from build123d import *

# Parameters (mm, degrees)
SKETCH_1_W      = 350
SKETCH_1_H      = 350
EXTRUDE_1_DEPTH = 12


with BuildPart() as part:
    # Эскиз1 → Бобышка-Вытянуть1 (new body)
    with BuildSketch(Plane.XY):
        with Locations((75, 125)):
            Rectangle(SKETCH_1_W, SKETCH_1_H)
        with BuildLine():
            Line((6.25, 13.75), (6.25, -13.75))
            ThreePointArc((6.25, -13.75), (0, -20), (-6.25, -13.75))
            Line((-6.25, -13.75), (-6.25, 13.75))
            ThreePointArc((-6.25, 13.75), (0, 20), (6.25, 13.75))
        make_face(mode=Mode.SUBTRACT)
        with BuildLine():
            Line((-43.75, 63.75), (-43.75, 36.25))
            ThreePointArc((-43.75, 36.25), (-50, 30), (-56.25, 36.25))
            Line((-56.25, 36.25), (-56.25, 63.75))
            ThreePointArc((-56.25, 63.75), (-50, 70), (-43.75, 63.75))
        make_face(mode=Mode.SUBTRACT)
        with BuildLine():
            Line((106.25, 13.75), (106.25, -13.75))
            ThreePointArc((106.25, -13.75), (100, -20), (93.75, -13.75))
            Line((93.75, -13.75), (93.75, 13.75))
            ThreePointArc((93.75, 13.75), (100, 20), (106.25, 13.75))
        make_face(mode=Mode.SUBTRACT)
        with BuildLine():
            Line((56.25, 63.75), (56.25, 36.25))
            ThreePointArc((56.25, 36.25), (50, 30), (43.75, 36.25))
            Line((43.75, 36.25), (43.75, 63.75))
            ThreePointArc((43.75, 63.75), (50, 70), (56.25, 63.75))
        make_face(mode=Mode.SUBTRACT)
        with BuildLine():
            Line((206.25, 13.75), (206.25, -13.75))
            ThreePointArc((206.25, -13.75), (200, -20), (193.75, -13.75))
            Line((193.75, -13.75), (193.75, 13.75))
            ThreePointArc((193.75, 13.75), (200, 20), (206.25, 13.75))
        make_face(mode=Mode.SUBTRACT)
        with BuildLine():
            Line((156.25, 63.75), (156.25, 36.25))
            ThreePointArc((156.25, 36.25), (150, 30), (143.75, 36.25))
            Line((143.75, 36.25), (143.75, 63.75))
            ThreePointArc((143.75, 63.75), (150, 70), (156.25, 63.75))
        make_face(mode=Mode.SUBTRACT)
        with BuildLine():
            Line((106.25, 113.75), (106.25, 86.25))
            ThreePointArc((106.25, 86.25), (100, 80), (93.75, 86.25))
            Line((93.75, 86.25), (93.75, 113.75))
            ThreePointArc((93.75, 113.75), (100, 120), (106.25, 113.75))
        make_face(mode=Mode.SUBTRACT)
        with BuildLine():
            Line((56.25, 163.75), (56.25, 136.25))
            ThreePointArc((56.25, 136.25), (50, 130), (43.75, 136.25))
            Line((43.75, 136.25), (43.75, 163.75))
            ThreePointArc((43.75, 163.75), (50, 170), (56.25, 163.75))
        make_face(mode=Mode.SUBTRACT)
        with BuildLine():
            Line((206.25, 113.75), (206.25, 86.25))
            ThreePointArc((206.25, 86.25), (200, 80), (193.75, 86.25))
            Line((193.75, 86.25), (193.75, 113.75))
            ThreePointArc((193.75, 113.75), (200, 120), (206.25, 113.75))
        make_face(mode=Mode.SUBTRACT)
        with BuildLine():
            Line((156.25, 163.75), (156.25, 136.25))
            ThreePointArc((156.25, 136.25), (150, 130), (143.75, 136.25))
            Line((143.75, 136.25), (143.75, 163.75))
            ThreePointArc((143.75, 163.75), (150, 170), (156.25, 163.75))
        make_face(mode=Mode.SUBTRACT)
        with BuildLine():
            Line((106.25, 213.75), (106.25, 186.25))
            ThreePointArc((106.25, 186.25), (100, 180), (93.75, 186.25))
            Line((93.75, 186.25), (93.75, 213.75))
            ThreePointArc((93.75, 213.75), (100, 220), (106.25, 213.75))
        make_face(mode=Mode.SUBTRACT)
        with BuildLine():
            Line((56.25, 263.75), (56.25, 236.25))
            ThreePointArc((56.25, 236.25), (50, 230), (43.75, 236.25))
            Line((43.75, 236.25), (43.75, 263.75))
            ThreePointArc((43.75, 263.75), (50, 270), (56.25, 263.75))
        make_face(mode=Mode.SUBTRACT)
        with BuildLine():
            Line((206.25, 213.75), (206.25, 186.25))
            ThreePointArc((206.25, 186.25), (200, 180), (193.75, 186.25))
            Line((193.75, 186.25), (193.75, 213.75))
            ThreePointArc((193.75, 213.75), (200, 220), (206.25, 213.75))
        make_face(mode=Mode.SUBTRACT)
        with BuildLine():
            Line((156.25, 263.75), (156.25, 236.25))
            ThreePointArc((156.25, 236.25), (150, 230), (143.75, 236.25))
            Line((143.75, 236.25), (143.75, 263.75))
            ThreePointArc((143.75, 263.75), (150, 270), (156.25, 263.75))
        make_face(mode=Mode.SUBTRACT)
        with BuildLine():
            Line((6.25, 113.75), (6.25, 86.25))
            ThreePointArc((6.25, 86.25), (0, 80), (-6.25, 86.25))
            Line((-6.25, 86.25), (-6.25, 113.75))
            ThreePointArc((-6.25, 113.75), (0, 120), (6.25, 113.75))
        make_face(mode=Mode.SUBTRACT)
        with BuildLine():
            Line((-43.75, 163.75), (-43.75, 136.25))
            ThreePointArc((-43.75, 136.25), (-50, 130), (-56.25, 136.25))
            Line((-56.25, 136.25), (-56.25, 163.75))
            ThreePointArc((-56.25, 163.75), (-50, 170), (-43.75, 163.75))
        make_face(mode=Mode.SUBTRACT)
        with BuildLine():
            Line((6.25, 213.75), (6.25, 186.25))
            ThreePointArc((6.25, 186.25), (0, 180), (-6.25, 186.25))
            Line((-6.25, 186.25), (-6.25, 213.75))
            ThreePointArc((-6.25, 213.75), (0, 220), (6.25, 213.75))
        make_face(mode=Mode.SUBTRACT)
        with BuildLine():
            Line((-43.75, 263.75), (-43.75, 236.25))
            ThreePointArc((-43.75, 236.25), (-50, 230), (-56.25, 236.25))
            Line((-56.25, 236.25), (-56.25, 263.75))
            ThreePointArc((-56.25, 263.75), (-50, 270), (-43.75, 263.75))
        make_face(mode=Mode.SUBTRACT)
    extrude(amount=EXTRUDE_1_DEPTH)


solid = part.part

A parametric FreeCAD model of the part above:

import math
import FreeCAD as App
import Part
import Sketcher
Q = App.Units.Quantity

doc = App.newDocument("Part")
body = doc.addObject("PartDesign::Body", "Body")

# Sketch on XY plane
sketch1 = body.newObject("Sketcher::SketchObject", "Sketch")
sketch1.AttachmentSupport = (doc.getObject("XY_Plane"), [""])
sketch1.MapMode = "FlatFace"
sketch1.addGeometry([
    Part.LineSegment(App.Vector(-100, 300, 0), App.Vector(-100, -50, 0)),  # 0
    Part.LineSegment(App.Vector(-100, -50, 0), App.Vector(250, -50, 0)),  # 1
    Part.LineSegment(App.Vector(250, -50, 0), App.Vector(250, 300, 0)),  # 2
    Part.LineSegment(App.Vector(250, 300, 0), App.Vector(-100, 300, 0)),  # 3
    Part.ArcOfCircle(Part.Circle(App.Vector(0, 13.75, 0), App.Vector(0, 0, 1), 6.25), math.radians(0), math.radians(180)),  # 4
    Part.LineSegment(App.Vector(6.25, 13.75, 0), App.Vector(6.25, -13.75, 0)),  # 5
    Part.ArcOfCircle(Part.Circle(App.Vector(0, -13.75, 0), App.Vector(0, 0, 1), 6.25), math.radians(180), math.radians(360)),  # 6
    Part.LineSegment(App.Vector(-6.25, -13.75, 0), App.Vector(-6.25, 13.75, 0)),  # 7
    Part.ArcOfCircle(Part.Circle(App.Vector(-50, 63.75, 0), App.Vector(0, 0, 1), 6.25), math.radians(0), math.radians(180)),  # 8
    Part.LineSegment(App.Vector(-43.75, 63.75, 0), App.Vector(-43.75, 36.25, 0)),  # 9
    Part.ArcOfCircle(Part.Circle(App.Vector(-50, 36.25, 0), App.Vector(0, 0, 1), 6.25), math.radians(180), math.radians(360)),  # 10
    Part.LineSegment(App.Vector(-56.25, 36.25, 0), App.Vector(-56.25, 63.75, 0)),  # 11
    Part.ArcOfCircle(Part.Circle(App.Vector(50, 63.75, 0), App.Vector(0, 0, 1), 6.25), math.radians(0), math.radians(180)),  # 12
    Part.LineSegment(App.Vector(56.25, 63.75, 0), App.Vector(56.25, 36.25, 0)),  # 13
    Part.ArcOfCircle(Part.Circle(App.Vector(50, 36.25, 0), App.Vector(0, 0, 1), 6.25), math.radians(180), math.radians(360)),  # 14
    Part.LineSegment(App.Vector(43.75, 36.25, 0), App.Vector(43.75, 63.75, 0)),  # 15
    Part.ArcOfCircle(Part.Circle(App.Vector(0, 113.75, 0), App.Vector(0, 0, 1), 6.25), math.radians(0), math.radians(180)),  # 16
    Part.LineSegment(App.Vector(6.25, 113.75, 0), App.Vector(6.25, 86.25, 0)),  # 17
    Part.ArcOfCircle(Part.Circle(App.Vector(0, 86.25, 0), App.Vector(0, 0, 1), 6.25), math.radians(180), math.radians(360)),  # 18
    Part.LineSegment(App.Vector(-6.25, 86.25, 0), App.Vector(-6.25, 113.75, 0)),  # 19
    Part.ArcOfCircle(Part.Circle(App.Vector(100, 13.75, 0), App.Vector(0, 0, 1), 6.25), math.radians(0), math.radians(180)),  # 20
    Part.LineSegment(App.Vector(106.25, 13.75, 0), App.Vector(106.25, -13.75, 0)),  # 21
    Part.ArcOfCircle(Part.Circle(App.Vector(100, -13.75, 0), App.Vector(0, 0, 1), 6.25), math.radians(180), math.radians(360)),  # 22
    Part.LineSegment(App.Vector(93.75, -13.75, 0), App.Vector(93.75, 13.75, 0)),  # 23
    Part.ArcOfCircle(Part.Circle(App.Vector(200, 13.75, 0), App.Vector(0, 0, 1), 6.25), math.radians(0), math.radians(180)),  # 24
    Part.LineSegment(App.Vector(206.25, 13.75, 0), App.Vector(206.25, -13.75, 0)),  # 25
    Part.ArcOfCircle(Part.Circle(App.Vector(200, -13.75, 0), App.Vector(0, 0, 1), 6.25), math.radians(180), math.radians(360)),  # 26
    Part.LineSegment(App.Vector(193.75, -13.75, 0), App.Vector(193.75, 13.75, 0)),  # 27
    Part.ArcOfCircle(Part.Circle(App.Vector(150, 63.75, 0), App.Vector(0, 0, 1), 6.25), math.radians(0), math.radians(180)),  # 28
    Part.LineSegment(App.Vector(156.25, 63.75, 0), App.Vector(156.25, 36.25, 0)),  # 29
    Part.ArcOfCircle(Part.Circle(App.Vector(150, 36.25, 0), App.Vector(0, 0, 1), 6.25), math.radians(180), math.radians(360)),  # 30
    Part.LineSegment(App.Vector(143.75, 36.25, 0), App.Vector(143.75, 63.75, 0)),  # 31
    Part.ArcOfCircle(Part.Circle(App.Vector(100, 113.75, 0), App.Vector(0, 0, 1), 6.25), math.radians(0), math.radians(180)),  # 32
    Part.LineSegment(App.Vector(106.25, 113.75, 0), App.Vector(106.25, 86.25, 0)),  # 33
    Part.ArcOfCircle(Part.Circle(App.Vector(100, 86.25, 0), App.Vector(0, 0, 1), 6.25), math.radians(180), math.radians(360)),  # 34
    Part.LineSegment(App.Vector(93.75, 86.25, 0), App.Vector(93.75, 113.75, 0)),  # 35
    Part.ArcOfCircle(Part.Circle(App.Vector(200, 113.75, 0), App.Vector(0, 0, 1), 6.25), math.radians(0), math.radians(180)),  # 36
    Part.LineSegment(App.Vector(206.25, 113.75, 0), App.Vector(206.25, 86.25, 0)),  # 37
    Part.ArcOfCircle(Part.Circle(App.Vector(200, 86.25, 0), App.Vector(0, 0, 1), 6.25), math.radians(180), math.radians(360)),  # 38
    Part.LineSegment(App.Vector(193.75, 86.25, 0), App.Vector(193.75, 113.75, 0)),  # 39
    Part.ArcOfCircle(Part.Circle(App.Vector(-50, 163.75, 0), App.Vector(0, 0, 1), 6.25), math.radians(0), math.radians(180)),  # 40
    Part.LineSegment(App.Vector(-43.75, 163.75, 0), App.Vector(-43.75, 136.25, 0)),  # 41
    Part.ArcOfCircle(Part.Circle(App.Vector(-50, 136.25, 0), App.Vector(0, 0, 1), 6.25), math.radians(180), math.radians(360)),  # 42
    Part.LineSegment(App.Vector(-56.25, 136.25, 0), App.Vector(-56.25, 163.75, 0)),  # 43
    Part.ArcOfCircle(Part.Circle(App.Vector(50, 163.75, 0), App.Vector(0, 0, 1), 6.25), math.radians(0), math.radians(180)),  # 44
    Part.LineSegment(App.Vector(56.25, 163.75, 0), App.Vector(56.25, 136.25, 0)),  # 45
    Part.ArcOfCircle(Part.Circle(App.Vector(50, 136.25, 0), App.Vector(0, 0, 1), 6.25), math.radians(180), math.radians(360)),  # 46
    Part.LineSegment(App.Vector(43.75, 136.25, 0), App.Vector(43.75, 163.75, 0)),  # 47
    Part.ArcOfCircle(Part.Circle(App.Vector(0, 213.75, 0), App.Vector(0, 0, 1), 6.25), math.radians(0), math.radians(180)),  # 48
    Part.LineSegment(App.Vector(6.25, 213.75, 0), App.Vector(6.25, 186.25, 0)),  # 49
    Part.ArcOfCircle(Part.Circle(App.Vector(0, 186.25, 0), App.Vector(0, 0, 1), 6.25), math.radians(180), math.radians(360)),  # 50
    Part.LineSegment(App.Vector(-6.25, 186.25, 0), App.Vector(-6.25, 213.75, 0)),  # 51
    Part.ArcOfCircle(Part.Circle(App.Vector(-50, 263.75, 0), App.Vector(0, 0, 1), 6.25), math.radians(0), math.radians(180)),  # 52
    Part.LineSegment(App.Vector(-43.75, 263.75, 0), App.Vector(-43.75, 236.25, 0)),  # 53
    Part.ArcOfCircle(Part.Circle(App.Vector(-50, 236.25, 0), App.Vector(0, 0, 1), 6.25), math.radians(180), math.radians(360)),  # 54
    Part.LineSegment(App.Vector(-56.25, 236.25, 0), App.Vector(-56.25, 263.75, 0)),  # 55
    Part.ArcOfCircle(Part.Circle(App.Vector(50, 263.75, 0), App.Vector(0, 0, 1), 6.25), math.radians(0), math.radians(180)),  # 56
    Part.LineSegment(App.Vector(56.25, 263.75, 0), App.Vector(56.25, 236.25, 0)),  # 57
    Part.ArcOfCircle(Part.Circle(App.Vector(50, 236.25, 0), App.Vector(0, 0, 1), 6.25), math.radians(180), math.radians(360)),  # 58
    Part.LineSegment(App.Vector(43.75, 236.25, 0), App.Vector(43.75, 263.75, 0)),  # 59
    Part.ArcOfCircle(Part.Circle(App.Vector(150, 163.75, 0), App.Vector(0, 0, 1), 6.25), math.radians(0), math.radians(180)),  # 60
    Part.LineSegment(App.Vector(156.25, 163.75, 0), App.Vector(156.25, 136.25, 0)),  # 61
    Part.ArcOfCircle(Part.Circle(App.Vector(150, 136.25, 0), App.Vector(0, 0, 1), 6.25), math.radians(180), math.radians(360)),  # 62
    Part.LineSegment(App.Vector(143.75, 136.25, 0), App.Vector(143.75, 163.75, 0)),  # 63
    Part.ArcOfCircle(Part.Circle(App.Vector(100, 213.75, 0), App.Vector(0, 0, 1), 6.25), math.radians(0), math.radians(180)),  # 64
    Part.LineSegment(App.Vector(106.25, 213.75, 0), App.Vector(106.25, 186.25, 0)),  # 65
    Part.ArcOfCircle(Part.Circle(App.Vector(100, 186.25, 0), App.Vector(0, 0, 1), 6.25), math.radians(180), math.radians(360)),  # 66
    Part.LineSegment(App.Vector(93.75, 186.25, 0), App.Vector(93.75, 213.75, 0)),  # 67
    Part.ArcOfCircle(Part.Circle(App.Vector(200, 213.75, 0), App.Vector(0, 0, 1), 6.25), math.radians(0), math.radians(180)),  # 68
    Part.LineSegment(App.Vector(206.25, 213.75, 0), App.Vector(206.25, 186.25, 0)),  # 69
    Part.ArcOfCircle(Part.Circle(App.Vector(200, 186.25, 0), App.Vector(0, 0, 1), 6.25), math.radians(180), math.radians(360)),  # 70
    Part.LineSegment(App.Vector(193.75, 186.25, 0), App.Vector(193.75, 213.75, 0)),  # 71
    Part.ArcOfCircle(Part.Circle(App.Vector(150, 263.75, 0), App.Vector(0, 0, 1), 6.25), math.radians(0), math.radians(180)),  # 72
    Part.LineSegment(App.Vector(156.25, 263.75, 0), App.Vector(156.25, 236.25, 0)),  # 73
    Part.ArcOfCircle(Part.Circle(App.Vector(150, 236.25, 0), App.Vector(0, 0, 1), 6.25), math.radians(180), math.radians(360)),  # 74
    Part.LineSegment(App.Vector(143.75, 236.25, 0), App.Vector(143.75, 263.75, 0)),  # 75
], False)
sketch1.addConstraint([
    Sketcher.Constraint("Coincident", 0, 2, 1, 1),
    Sketcher.Constraint("Coincident", 1, 2, 2, 1),
    Sketcher.Constraint("Coincident", 2, 2, 3, 1),
    Sketcher.Constraint("Coincident", 3, 2, 0, 1),
    Sketcher.Constraint("Tangent", 4, 1, 5, 1),
    Sketcher.Constraint("Tangent", 5, 2, 6, 2),
    Sketcher.Constraint("Tangent", 6, 1, 7, 1),
    Sketcher.Constraint("Tangent", 7, 2, 4, 2),
    Sketcher.Constraint("Tangent", 8, 1, 9, 1),
    Sketcher.Constraint("Tangent", 9, 2, 10, 2),
    Sketcher.Constraint("Tangent", 10, 1, 11, 1),
    Sketcher.Constraint("Tangent", 11, 2, 8, 2),
    Sketcher.Constraint("Tangent", 12, 1, 13, 1),
    Sketcher.Constraint("Tangent", 13, 2, 14, 2),
    Sketcher.Constraint("Tangent", 14, 1, 15, 1),
    Sketcher.Constraint("Tangent", 15, 2, 12, 2),
    Sketcher.Constraint("Tangent", 16, 1, 17, 1),
    Sketcher.Constraint("Tangent", 17, 2, 18, 2),
    Sketcher.Constraint("Tangent", 18, 1, 19, 1),
    Sketcher.Constraint("Tangent", 19, 2, 16, 2),
    Sketcher.Constraint("Tangent", 20, 1, 21, 1),
    Sketcher.Constraint("Tangent", 21, 2, 22, 2),
    Sketcher.Constraint("Tangent", 22, 1, 23, 1),
    Sketcher.Constraint("Tangent", 23, 2, 20, 2),
    Sketcher.Constraint("Tangent", 24, 1, 25, 1),
    Sketcher.Constraint("Tangent", 25, 2, 26, 2),
    Sketcher.Constraint("Tangent", 26, 1, 27, 1),
    Sketcher.Constraint("Tangent", 27, 2, 24, 2),
    Sketcher.Constraint("Tangent", 28, 1, 29, 1),
    Sketcher.Constraint("Tangent", 29, 2, 30, 2),
    Sketcher.Constraint("Tangent", 30, 1, 31, 1),
    Sketcher.Constraint("Tangent", 31, 2, 28, 2),
    Sketcher.Constraint("Tangent", 32, 1, 33, 1),
    Sketcher.Constraint("Tangent", 33, 2, 34, 2),
    Sketcher.Constraint("Tangent", 34, 1, 35, 1),
    Sketcher.Constraint("Tangent", 35, 2, 32, 2),
    Sketcher.Constraint("Tangent", 36, 1, 37, 1),
    Sketcher.Constraint("Tangent", 37, 2, 38, 2),
    Sketcher.Constraint("Tangent", 38, 1, 39, 1),
    Sketcher.Constraint("Tangent", 39, 2, 36, 2),
    Sketcher.Constraint("Tangent", 40, 1, 41, 1),
    Sketcher.Constraint("Tangent", 41, 2, 42, 2),
    Sketcher.Constraint("Tangent", 42, 1, 43, 1),
    Sketcher.Constraint("Tangent", 43, 2, 40, 2),
    Sketcher.Constraint("Tangent", 44, 1, 45, 1),
    Sketcher.Constraint("Tangent", 45, 2, 46, 2),
    Sketcher.Constraint("Tangent", 46, 1, 47, 1),
    Sketcher.Constraint("Tangent", 47, 2, 44, 2),
    Sketcher.Constraint("Tangent", 48, 1, 49, 1),
    Sketcher.Constraint("Tangent", 49, 2, 50, 2),
    Sketcher.Constraint("Tangent", 50, 1, 51, 1),
    Sketcher.Constraint("Tangent", 51, 2, 48, 2),
    Sketcher.Constraint("Tangent", 52, 1, 53, 1),
    Sketcher.Constraint("Tangent", 53, 2, 54, 2),
    Sketcher.Constraint("Tangent", 54, 1, 55, 1),
    Sketcher.Constraint("Tangent", 55, 2, 52, 2),
    Sketcher.Constraint("Tangent", 56, 1, 57, 1),
    Sketcher.Constraint("Tangent", 57, 2, 58, 2),
    Sketcher.Constraint("Tangent", 58, 1, 59, 1),
    Sketcher.Constraint("Tangent", 59, 2, 56, 2),
    Sketcher.Constraint("Tangent", 60, 1, 61, 1),
    Sketcher.Constraint("Tangent", 61, 2, 62, 2),
    Sketcher.Constraint("Tangent", 62, 1, 63, 1),
    Sketcher.Constraint("Tangent", 63, 2, 60, 2),
    Sketcher.Constraint("Tangent", 64, 1, 65, 1),
    Sketcher.Constraint("Tangent", 65, 2, 66, 2),
    Sketcher.Constraint("Tangent", 66, 1, 67, 1),
    Sketcher.Constraint("Tangent", 67, 2, 64, 2),
    Sketcher.Constraint("Tangent", 68, 1, 69, 1),
    Sketcher.Constraint("Tangent", 69, 2, 70, 2),
    Sketcher.Constraint("Tangent", 70, 1, 71, 1),
    Sketcher.Constraint("Tangent", 71, 2, 68, 2),
    Sketcher.Constraint("Tangent", 72, 1, 73, 1),
    Sketcher.Constraint("Tangent", 73, 2, 74, 2),
    Sketcher.Constraint("Tangent", 74, 1, 75, 1),
    Sketcher.Constraint("Tangent", 75, 2, 72, 2),
    Sketcher.Constraint("Vertical", 0),
    Sketcher.Constraint("Horizontal", 1),
    Sketcher.Constraint("Vertical", 2),
    Sketcher.Constraint("Horizontal", 3),
    Sketcher.Constraint("Vertical", 5),
    Sketcher.Constraint("Vertical", 7),
    Sketcher.Constraint("Vertical", 9),
    Sketcher.Constraint("Vertical", 11),
    Sketcher.Constraint("Vertical", 13),
    Sketcher.Constraint("Vertical", 15),
    Sketcher.Constraint("Vertical", 17),
    Sketcher.Constraint("Vertical", 19),
    Sketcher.Constraint("Vertical", 21),
    Sketcher.Constraint("Vertical", 23),
    Sketcher.Constraint("Vertical", 25),
    Sketcher.Constraint("Vertical", 27),
    Sketcher.Constraint("Vertical", 29),
    Sketcher.Constraint("Vertical", 31),
    Sketcher.Constraint("Vertical", 33),
    Sketcher.Constraint("Vertical", 35),
    Sketcher.Constraint("Vertical", 37),
    Sketcher.Constraint("Vertical", 39),
    Sketcher.Constraint("Vertical", 41),
    Sketcher.Constraint("Vertical", 43),
    Sketcher.Constraint("Vertical", 45),
    Sketcher.Constraint("Vertical", 47),
    Sketcher.Constraint("Vertical", 49),
    Sketcher.Constraint("Vertical", 51),
    Sketcher.Constraint("Vertical", 53),
    Sketcher.Constraint("Vertical", 55),
    Sketcher.Constraint("Vertical", 57),
    Sketcher.Constraint("Vertical", 59),
    Sketcher.Constraint("Vertical", 61),
    Sketcher.Constraint("Vertical", 63),
    Sketcher.Constraint("Vertical", 65),
    Sketcher.Constraint("Vertical", 67),
    Sketcher.Constraint("Vertical", 69),
    Sketcher.Constraint("Vertical", 71),
    Sketcher.Constraint("Vertical", 73),
    Sketcher.Constraint("Vertical", 75),
    Sketcher.Constraint("Equal", 6, 8),
    Sketcher.Constraint("Equal", 10, 12),
    Sketcher.Constraint("Equal", 14, 16),
    Sketcher.Constraint("Equal", 18, 20),
    Sketcher.Constraint("Equal", 22, 24),
    Sketcher.Constraint("Equal", 26, 28),
    Sketcher.Constraint("Equal", 30, 32),
    Sketcher.Constraint("Equal", 34, 36),
    Sketcher.Constraint("Equal", 38, 40),
    Sketcher.Constraint("Equal", 42, 44),
    Sketcher.Constraint("Equal", 46, 48),
    Sketcher.Constraint("Equal", 50, 52),
    Sketcher.Constraint("Equal", 54, 56),
    Sketcher.Constraint("Equal", 58, 60),
    Sketcher.Constraint("Equal", 62, 64),
    Sketcher.Constraint("Equal", 66, 68),
    Sketcher.Constraint("Equal", 70, 72),
    Sketcher.Constraint("Symmetric", 4, 3, 6, 3, -1, 1),
    Sketcher.Constraint("Symmetric", 8, 3, 12, 3, -2),
    Sketcher.Constraint("Symmetric", 40, 3, 44, 3, -2),
    Sketcher.Constraint("Symmetric", 52, 3, 56, 3, -2),
    Sketcher.Constraint("PointOnObject", 16, 3, -2),
    Sketcher.Constraint("PointOnObject", 48, 3, -2),
    Sketcher.Constraint("Horizontal", 10, 3, 14, 3),
    Sketcher.Constraint("Horizontal", 4, 3, 20, 3),
    Sketcher.Constraint("Horizontal", 6, 3, 22, 3),
    Sketcher.Constraint("Horizontal", 20, 3, 24, 3),
    Sketcher.Constraint("Horizontal", 22, 3, 26, 3),
    Sketcher.Constraint("Horizontal", 12, 3, 28, 3),
    Sketcher.Constraint("Horizontal", 14, 3, 30, 3),
    Sketcher.Constraint("Horizontal", 16, 3, 32, 3),
    Sketcher.Constraint("Horizontal", 18, 3, 34, 3),
    Sketcher.Constraint("Horizontal", 32, 3, 36, 3),
    Sketcher.Constraint("Horizontal", 34, 3, 38, 3),
    Sketcher.Constraint("Horizontal", 42, 3, 46, 3),
    Sketcher.Constraint("Horizontal", 54, 3, 58, 3),
    Sketcher.Constraint("Horizontal", 44, 3, 60, 3),
    Sketcher.Constraint("Horizontal", 46, 3, 62, 3),
    Sketcher.Constraint("Horizontal", 48, 3, 64, 3),
    Sketcher.Constraint("Horizontal", 50, 3, 66, 3),
    Sketcher.Constraint("Horizontal", 64, 3, 68, 3),
    Sketcher.Constraint("Horizontal", 66, 3, 70, 3),
    Sketcher.Constraint("Horizontal", 56, 3, 72, 3),
    Sketcher.Constraint("Horizontal", 58, 3, 74, 3),
    Sketcher.Constraint("Vertical", 22, 3, 32, 3),
    Sketcher.Constraint("Vertical", 26, 3, 36, 3),
    Sketcher.Constraint("Vertical", 10, 3, 40, 3),
    Sketcher.Constraint("Vertical", 42, 3, 52, 3),
    Sketcher.Constraint("Vertical", 30, 3, 60, 3),
    Sketcher.Constraint("Vertical", 34, 3, 64, 3),
    Sketcher.Constraint("Vertical", 38, 3, 68, 3),
    Sketcher.Constraint("Vertical", 62, 3, 72, 3),
    Sketcher.Constraint("Equal", 3, 0),
    Sketcher.Constraint("Equal", 7, 9),
    Sketcher.Constraint("Equal", 15, 17),
    Sketcher.Constraint("Equal", 39, 41),
    Sketcher.Constraint("Equal", 47, 49),
    Sketcher.Constraint("Equal", 51, 53),
    Sketcher.Constraint("DistanceX", 1, 1, 1, 2, Q("350 mm")),
    Sketcher.Constraint("Radius", 4, Q("6.25 mm")),
    Sketcher.Constraint("DistanceY", 5, 2, 5, 1, Q("27.5 mm")),
    Sketcher.Constraint("DistanceX", 8, 3, -1, 1, Q("50 mm")),
    Sketcher.Constraint("DistanceX", -1, 1, 20, 3, Q("100 mm")),
    Sketcher.Constraint("DistanceX", -1, 1, 24, 3, Q("200 mm")),
    Sketcher.Constraint("DistanceX", -1, 1, 28, 3, Q("150 mm")),
    Sketcher.Constraint("DistanceX", 0, 2, -1, 1, Q("100 mm")),
    Sketcher.Constraint("DistanceY", 0, 2, -1, 1, Q("50 mm")),
    Sketcher.Constraint("DistanceY", -1, 1, 8, 3, Q("63.75 mm")),
    Sketcher.Constraint("DistanceY", -1, 1, 16, 3, Q("113.75 mm")),
    Sketcher.Constraint("DistanceY", -1, 1, 40, 3, Q("163.75 mm")),
    Sketcher.Constraint("DistanceY", -1, 1, 48, 3, Q("213.75 mm")),
    Sketcher.Constraint("DistanceY", -1, 1, 52, 3, Q("263.75 mm")),
])
pad1 = body.newObject("PartDesign::Pad", "Pad")
pad1.Profile = sketch1
pad1.Length = 12

doc.recompute()
